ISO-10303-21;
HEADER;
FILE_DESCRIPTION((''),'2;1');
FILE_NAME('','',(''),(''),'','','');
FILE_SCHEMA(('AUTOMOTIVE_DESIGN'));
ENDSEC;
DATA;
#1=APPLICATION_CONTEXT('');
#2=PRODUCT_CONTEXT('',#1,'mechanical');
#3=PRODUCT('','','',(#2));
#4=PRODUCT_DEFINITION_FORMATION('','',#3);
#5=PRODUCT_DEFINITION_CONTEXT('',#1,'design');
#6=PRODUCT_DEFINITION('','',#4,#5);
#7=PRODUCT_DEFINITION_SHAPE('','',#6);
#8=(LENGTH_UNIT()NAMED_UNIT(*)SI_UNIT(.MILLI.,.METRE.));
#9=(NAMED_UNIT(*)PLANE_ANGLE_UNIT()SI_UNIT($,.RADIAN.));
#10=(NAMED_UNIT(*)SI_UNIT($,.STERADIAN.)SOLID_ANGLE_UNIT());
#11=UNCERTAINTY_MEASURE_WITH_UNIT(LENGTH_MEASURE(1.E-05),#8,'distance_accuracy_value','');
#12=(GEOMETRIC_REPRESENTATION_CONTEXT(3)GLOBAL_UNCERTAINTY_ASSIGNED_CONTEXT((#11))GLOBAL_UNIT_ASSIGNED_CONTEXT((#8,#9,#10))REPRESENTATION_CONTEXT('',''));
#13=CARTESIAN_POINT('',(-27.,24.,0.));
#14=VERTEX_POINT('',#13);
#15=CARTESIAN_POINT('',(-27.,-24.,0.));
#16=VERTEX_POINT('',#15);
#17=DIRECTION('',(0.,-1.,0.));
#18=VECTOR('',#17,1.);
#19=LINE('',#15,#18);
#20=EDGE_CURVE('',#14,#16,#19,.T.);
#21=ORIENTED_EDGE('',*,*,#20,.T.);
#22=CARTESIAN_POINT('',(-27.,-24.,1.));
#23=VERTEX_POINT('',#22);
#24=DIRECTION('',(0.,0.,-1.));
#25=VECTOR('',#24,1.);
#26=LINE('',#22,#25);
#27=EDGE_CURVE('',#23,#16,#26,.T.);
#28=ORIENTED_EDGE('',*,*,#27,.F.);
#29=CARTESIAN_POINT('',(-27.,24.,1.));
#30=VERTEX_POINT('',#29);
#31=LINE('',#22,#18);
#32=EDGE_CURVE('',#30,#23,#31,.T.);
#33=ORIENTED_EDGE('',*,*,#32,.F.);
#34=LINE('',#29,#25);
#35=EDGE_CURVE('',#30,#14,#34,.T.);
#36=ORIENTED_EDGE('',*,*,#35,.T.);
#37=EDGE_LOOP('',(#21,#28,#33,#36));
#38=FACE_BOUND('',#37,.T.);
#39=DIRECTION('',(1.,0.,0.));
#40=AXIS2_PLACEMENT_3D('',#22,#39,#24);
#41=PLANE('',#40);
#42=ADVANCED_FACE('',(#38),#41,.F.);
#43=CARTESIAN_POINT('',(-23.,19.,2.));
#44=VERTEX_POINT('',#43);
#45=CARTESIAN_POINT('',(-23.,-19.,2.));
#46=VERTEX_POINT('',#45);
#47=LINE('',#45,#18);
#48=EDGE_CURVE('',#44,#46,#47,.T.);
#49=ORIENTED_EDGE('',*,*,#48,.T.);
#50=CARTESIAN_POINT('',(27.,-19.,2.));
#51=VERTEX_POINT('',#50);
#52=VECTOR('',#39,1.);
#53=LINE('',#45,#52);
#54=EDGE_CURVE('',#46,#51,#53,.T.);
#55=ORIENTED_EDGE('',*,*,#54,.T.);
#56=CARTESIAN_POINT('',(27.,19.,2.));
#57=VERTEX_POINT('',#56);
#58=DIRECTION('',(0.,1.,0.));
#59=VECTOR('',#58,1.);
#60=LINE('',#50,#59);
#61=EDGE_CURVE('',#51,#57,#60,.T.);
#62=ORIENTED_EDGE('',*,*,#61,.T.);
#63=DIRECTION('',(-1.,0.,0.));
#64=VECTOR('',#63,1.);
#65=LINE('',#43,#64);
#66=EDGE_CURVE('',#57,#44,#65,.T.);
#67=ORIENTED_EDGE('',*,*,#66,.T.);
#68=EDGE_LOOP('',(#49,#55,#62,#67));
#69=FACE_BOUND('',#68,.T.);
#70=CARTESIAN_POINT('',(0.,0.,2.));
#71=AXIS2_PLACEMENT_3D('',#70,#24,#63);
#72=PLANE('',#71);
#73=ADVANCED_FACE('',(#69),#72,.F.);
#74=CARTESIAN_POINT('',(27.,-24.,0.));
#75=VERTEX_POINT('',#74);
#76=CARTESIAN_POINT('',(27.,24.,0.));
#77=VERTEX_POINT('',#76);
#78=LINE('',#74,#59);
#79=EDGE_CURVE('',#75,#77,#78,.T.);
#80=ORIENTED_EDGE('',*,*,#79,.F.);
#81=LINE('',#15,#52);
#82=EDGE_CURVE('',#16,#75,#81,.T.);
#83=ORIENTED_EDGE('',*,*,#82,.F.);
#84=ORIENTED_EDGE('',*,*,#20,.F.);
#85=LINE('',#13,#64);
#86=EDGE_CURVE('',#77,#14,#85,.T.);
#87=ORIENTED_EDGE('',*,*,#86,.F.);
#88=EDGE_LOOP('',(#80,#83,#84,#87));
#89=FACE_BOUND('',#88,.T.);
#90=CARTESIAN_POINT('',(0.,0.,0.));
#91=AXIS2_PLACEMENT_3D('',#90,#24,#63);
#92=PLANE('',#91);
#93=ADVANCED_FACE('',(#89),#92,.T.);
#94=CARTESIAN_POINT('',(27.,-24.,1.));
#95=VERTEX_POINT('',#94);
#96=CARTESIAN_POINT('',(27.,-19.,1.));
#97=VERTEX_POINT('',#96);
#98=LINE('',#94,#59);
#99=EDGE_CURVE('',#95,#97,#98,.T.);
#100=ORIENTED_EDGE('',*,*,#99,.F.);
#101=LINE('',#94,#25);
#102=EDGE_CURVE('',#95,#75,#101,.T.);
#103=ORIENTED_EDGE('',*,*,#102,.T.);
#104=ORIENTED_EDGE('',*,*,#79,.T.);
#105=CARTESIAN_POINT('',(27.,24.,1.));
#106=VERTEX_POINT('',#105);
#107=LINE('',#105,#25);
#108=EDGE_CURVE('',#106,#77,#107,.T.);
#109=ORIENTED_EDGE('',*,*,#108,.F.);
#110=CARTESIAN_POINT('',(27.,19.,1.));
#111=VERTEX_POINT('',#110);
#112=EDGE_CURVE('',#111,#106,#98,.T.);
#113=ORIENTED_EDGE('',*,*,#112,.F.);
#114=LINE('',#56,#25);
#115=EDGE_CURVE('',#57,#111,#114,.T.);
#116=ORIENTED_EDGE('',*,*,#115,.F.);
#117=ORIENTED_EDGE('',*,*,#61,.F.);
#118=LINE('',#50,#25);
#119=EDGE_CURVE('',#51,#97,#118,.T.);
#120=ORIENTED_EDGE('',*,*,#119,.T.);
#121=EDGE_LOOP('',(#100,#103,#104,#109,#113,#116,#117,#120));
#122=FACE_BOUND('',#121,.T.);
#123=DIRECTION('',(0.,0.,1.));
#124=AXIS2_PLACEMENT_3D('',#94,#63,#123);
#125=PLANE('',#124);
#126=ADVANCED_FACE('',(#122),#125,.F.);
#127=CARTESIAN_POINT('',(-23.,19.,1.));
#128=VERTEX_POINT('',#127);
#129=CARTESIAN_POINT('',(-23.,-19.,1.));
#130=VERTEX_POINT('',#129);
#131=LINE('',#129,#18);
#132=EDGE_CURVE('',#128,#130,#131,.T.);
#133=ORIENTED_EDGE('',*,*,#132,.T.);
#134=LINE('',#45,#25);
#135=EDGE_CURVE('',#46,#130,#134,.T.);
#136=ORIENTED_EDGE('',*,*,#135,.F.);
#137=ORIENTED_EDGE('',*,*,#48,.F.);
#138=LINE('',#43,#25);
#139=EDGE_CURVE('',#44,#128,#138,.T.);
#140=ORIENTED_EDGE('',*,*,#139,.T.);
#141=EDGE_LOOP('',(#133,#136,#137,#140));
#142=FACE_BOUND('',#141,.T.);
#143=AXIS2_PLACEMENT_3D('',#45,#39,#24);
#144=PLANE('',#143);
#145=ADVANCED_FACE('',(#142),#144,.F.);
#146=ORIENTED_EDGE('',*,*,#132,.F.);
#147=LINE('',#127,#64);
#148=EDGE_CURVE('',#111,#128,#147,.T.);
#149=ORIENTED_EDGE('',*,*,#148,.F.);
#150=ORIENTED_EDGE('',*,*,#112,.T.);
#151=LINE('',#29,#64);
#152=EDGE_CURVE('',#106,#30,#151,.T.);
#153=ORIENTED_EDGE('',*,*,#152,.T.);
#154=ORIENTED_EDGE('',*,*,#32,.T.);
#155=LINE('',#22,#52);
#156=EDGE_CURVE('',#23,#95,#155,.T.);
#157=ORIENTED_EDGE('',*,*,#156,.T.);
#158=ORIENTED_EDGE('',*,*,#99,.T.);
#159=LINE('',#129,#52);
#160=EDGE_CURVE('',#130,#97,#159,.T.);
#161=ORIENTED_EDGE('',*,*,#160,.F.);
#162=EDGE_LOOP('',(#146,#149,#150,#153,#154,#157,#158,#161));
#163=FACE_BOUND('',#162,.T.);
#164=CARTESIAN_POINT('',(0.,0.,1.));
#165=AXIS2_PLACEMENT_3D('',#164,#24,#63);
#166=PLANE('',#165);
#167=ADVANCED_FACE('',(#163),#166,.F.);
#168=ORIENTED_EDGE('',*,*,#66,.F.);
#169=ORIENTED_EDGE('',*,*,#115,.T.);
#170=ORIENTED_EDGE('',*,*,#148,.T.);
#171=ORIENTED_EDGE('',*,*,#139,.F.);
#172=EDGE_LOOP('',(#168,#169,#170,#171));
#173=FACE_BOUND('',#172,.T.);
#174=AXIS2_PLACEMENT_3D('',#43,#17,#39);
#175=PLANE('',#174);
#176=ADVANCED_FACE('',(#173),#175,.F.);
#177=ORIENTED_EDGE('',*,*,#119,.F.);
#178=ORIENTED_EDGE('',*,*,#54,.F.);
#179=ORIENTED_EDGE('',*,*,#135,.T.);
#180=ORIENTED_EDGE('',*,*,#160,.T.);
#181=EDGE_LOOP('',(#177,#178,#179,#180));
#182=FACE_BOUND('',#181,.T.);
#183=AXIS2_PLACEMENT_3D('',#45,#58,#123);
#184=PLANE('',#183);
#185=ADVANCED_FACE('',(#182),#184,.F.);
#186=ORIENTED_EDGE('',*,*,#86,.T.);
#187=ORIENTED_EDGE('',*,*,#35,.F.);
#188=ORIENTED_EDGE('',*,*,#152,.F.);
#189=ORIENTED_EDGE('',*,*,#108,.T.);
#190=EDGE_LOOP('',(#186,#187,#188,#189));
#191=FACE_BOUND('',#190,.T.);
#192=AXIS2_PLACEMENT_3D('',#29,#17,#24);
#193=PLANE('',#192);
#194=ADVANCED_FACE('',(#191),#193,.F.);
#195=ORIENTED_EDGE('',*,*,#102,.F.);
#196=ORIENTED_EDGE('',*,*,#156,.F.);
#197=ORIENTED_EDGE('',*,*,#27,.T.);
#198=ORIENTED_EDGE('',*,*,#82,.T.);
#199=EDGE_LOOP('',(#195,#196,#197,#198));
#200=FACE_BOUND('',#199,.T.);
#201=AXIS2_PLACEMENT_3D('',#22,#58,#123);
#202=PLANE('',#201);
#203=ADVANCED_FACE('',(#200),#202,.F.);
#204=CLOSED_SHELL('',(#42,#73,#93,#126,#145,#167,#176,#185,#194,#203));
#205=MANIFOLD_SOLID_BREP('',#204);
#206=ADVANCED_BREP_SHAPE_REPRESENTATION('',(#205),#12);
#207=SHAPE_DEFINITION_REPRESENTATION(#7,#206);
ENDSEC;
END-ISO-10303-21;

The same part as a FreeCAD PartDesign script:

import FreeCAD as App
import Part
import Sketcher

V = App.Vector
Q = App.Units.Quantity


def add_polygon(sketch, points):
    """Adds a closed chain of lines whose ends are joined by coincident constraints."""
    first, n = sketch.GeometryCount, len(points)
    for a, b in zip(points, points[1:] + points[:1]):
        sketch.addGeometry(Part.LineSegment(App.Vector(*a, 0), App.Vector(*b, 0)), False)
    for i in range(n):
        sketch.addConstraint(Sketcher.Constraint("Coincident", first + i, 2, first + (i + 1) % n, 1))

doc = App.newDocument("Part")
body = doc.addObject("PartDesign::Body", "Body")

sketch1 = body.newObject("Sketcher::SketchObject", "Sketch")
sketch1.AttachmentSupport = (doc.getObject("XY_Plane"), [""])
sketch1.MapMode = "FlatFace"
add_polygon(sketch1, [(-27, 24), (-27, -24), (27, -24), (27, 24)])
sketch1.addConstraint([
    Sketcher.Constraint("Vertical", 0),
    Sketcher.Constraint("Horizontal", 1),
    Sketcher.Constraint("Vertical", 2),
    Sketcher.Constraint("Horizontal", 3),
    Sketcher.Constraint("Symmetric", 0, 2, 2, 2, -1, 1),
    Sketcher.Constraint("DistanceX", 1, 1, 1, 2, Q("54 mm")),
    Sketcher.Constraint("DistanceY", 0, 2, 0, 1, Q("48 mm")),
])
pad1 = body.newObject("PartDesign::Pad", "Pad")
pad1.Profile = sketch1
pad1.Length = 1

sketch2 = body.newObject("Sketcher::SketchObject", "Sketch001")
sketch2.AttachmentSupport = (doc.getObject("XY_Plane"), [""])
sketch2.MapMode = "FlatFace"
sketch2.AttachmentOffset = App.Placement(V(0, 0, 1), App.Rotation())
add_polygon(sketch2, [(-23, 19), (-23, -19), (27, -19), (27, 19)])
sketch2.addConstraint([
    Sketcher.Constraint("Vertical", 0),
    Sketcher.Constraint("Horizontal", 1),
    Sketcher.Constraint("Vertical", 2),
    Sketcher.Constraint("Horizontal", 3),
    Sketcher.Constraint("DistanceX", 1, 1, 1, 2, Q("50 mm")),
    Sketcher.Constraint("DistanceY", 0, 2, 0, 1, Q("38 mm")),
    Sketcher.Constraint("DistanceX", 0, 2, -1, 1, Q("23 mm")),
    Sketcher.Constraint("DistanceY", 0, 2, -1, 1, Q("19 mm")),
])
pad2 = body.newObject("PartDesign::Pad", "Pad001")
pad2.Profile = sketch2
pad2.Length = 1

doc.recompute()
